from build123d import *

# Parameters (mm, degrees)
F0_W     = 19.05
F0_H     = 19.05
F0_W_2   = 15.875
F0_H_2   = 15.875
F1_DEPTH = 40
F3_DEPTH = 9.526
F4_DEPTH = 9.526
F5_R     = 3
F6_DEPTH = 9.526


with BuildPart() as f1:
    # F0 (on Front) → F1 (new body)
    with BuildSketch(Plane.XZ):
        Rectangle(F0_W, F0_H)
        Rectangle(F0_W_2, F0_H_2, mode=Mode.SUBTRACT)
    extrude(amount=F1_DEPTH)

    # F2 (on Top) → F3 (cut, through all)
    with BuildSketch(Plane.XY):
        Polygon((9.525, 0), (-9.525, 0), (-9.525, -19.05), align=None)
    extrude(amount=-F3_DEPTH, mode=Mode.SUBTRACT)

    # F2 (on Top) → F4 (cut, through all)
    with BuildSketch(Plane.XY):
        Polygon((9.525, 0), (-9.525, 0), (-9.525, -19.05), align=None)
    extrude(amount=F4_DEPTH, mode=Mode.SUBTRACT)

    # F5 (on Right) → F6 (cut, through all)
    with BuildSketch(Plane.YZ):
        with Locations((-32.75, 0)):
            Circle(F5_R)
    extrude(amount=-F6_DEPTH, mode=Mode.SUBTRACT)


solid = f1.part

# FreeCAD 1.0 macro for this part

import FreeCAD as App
import Part
import Sketcher
from FreeCAD import Vector
Q = App.Units.Quantity


def add_polygon(sketch, points):
    """Adds a closed chain of lines whose ends are joined by coincident constraints."""
    first, n = sketch.GeometryCount, len(points)
    for a, b in zip(points, points[1:] + points[:1]):
        sketch.addGeometry(Part.LineSegment(App.Vector(*a, 0), App.Vector(*b, 0)), False)
    for i in range(n):
        sketch.addConstraint(Sketcher.Constraint("Coincident", first + i, 2, first + (i + 1) % n, 1))

doc = App.newDocument("Part")
params = doc.addObject("Spreadsheet::Sheet", "Params")
for row, (alias, value) in enumerate([
    ("sketch1_width", "19.05 mm"),
    ("pad1_length", "40 mm"),
    ("sketch2_width", "19.05 mm"),
    ("sketch3_width", "19.05 mm"),
    ("sketch4_diameter", "6 mm"),
], start=1):
    params.set(f"A{row}", alias)
    params.set(f"B{row}", "=" + value)
    params.setAlias(f"B{row}", alias)

body = doc.addObject("PartDesign::Body", "Body")

sketch1 = doc.addObject("Sketcher::SketchObject", "Sketch")
body.addObject(sketch1)
sketch1.AttachmentSupport = (doc.XZ_Plane, [""])
sketch1.MapMode = "FlatFace"
add_polygon(sketch1, [(-9.525, 9.525), (-9.525, -9.525), (9.525, -9.525), (9.525, 9.525)])
add_polygon(sketch1, [(7.9375, -7.9375), (-7.9375, -7.9375), (-7.9375, 7.9375), (7.9375, 7.9375)])
sketch1.addConstraint([
    Sketcher.Constraint("Vertical", 0),
    Sketcher.Constraint("Horizontal", 1),
    Sketcher.Constraint("Vertical", 2),
    Sketcher.Constraint("Horizontal", 3),
    Sketcher.Constraint("Horizontal", 4),
    Sketcher.Constraint("Vertical", 5),
    Sketcher.Constraint("Horizontal", 6),
    Sketcher.Constraint("Vertical", 7),
    Sketcher.Constraint("Symmetric", 0, 2, 2, 2, -1, 1),
    Sketcher.Constraint("Symmetric", 4, 2, 6, 2, -1, 1),
    Sketcher.Constraint("Equal", 3, 0),
    Sketcher.Constraint("Equal", 6, 5),
    Sketcher.Constraint("DistanceX", 1, 1, 1, 2, Q("19.05 mm")),
    Sketcher.Constraint("DistanceX", 4, 2, 4, 1, Q("15.875 mm")),
])
sketch1.setExpression("Constraints[20]", "Params.sketch1_width")
pad1 = doc.addObject("PartDesign::Pad", "Pad")
body.addObject(pad1)
pad1.Profile = sketch1
pad1.setExpression("Length", "Params.pad1_length")

sketch2 = doc.addObject("Sketcher::SketchObject", "Sketch001")
body.addObject(sketch2)
sketch2.AttachmentSupport = (doc.XY_Plane, [""])
sketch2.MapMode = "FlatFace"
add_polygon(sketch2, [(9.525, 0), (-9.525, 0), (-9.525, -19.05)])
sketch2.addConstraint([
    Sketcher.Constraint("Horizontal", 0),
    Sketcher.Constraint("Vertical", 1),
    Sketcher.Constraint("Symmetric", 0, 2, 2, 2, -1, 1),
    Sketcher.Constraint("Equal", 0, 1),
    Sketcher.Constraint("DistanceX", 0, 2, 0, 1, Q("19.05 mm")),
])
sketch2.setExpression("Constraints[7]", "Params.sketch2_width")
pocket1 = doc.addObject("PartDesign::Pocket", "Pocket")
body.addObject(pocket1)
pocket1.Profile = sketch2
pocket1.Type = "ThroughAll"

sketch3 = doc.addObject("Sketcher::SketchObject", "Sketch002")
body.addObject(sketch3)
sketch3.AttachmentSupport = (doc.XY_Plane, [""])
sketch3.MapMode = "FlatFace"
add_polygon(sketch3, [(9.525, 0), (-9.525, 0), (-9.525, -19.05)])
sketch3.addConstraint([
    Sketcher.Constraint("Horizontal", 0),
    Sketcher.Constraint("Vertical", 1),
    Sketcher.Constraint("Symmetric", 0, 2, 2, 2, -1, 1),
    Sketcher.Constraint("Equal", 0, 1),
    Sketcher.Constraint("DistanceX", 0, 2, 0, 1, Q("19.05 mm")),
])
sketch3.setExpression("Constraints[7]", "Params.sketch3_width")
pocket2 = doc.addObject("PartDesign::Pocket", "Pocket001")
body.addObject(pocket2)
pocket2.Profile = sketch3
pocket2.Type = "ThroughAll"
pocket2.Reversed = True

sketch4 = doc.addObject("Sketcher::SketchObject", "Sketch003")
body.addObject(sketch4)
sketch4.AttachmentSupport = (doc.YZ_Plane, [""])
sketch4.MapMode = "FlatFace"
sketch4.addGeometry(Part.Circle(Vector(-32.75, 0, 0), Vector(0, 0, 1), 3), False)
sketch4.addConstraint([
    Sketcher.Constraint("PointOnObject", 0, 3, -1),
    Sketcher.Constraint("Diameter", 0, Q("6 mm")),
    Sketcher.Constraint("DistanceX", 0, 3, -1, 1, Q("32.75 mm")),
])
sketch4.setExpression("Constraints[1]", "Params.sketch4_diameter")
pocket3 = doc.addObject("PartDesign::Pocket", "Pocket002")
body.addObject(pocket3)
pocket3.Profile = sketch4
pocket3.Type = "ThroughAll"

doc.recompute()
